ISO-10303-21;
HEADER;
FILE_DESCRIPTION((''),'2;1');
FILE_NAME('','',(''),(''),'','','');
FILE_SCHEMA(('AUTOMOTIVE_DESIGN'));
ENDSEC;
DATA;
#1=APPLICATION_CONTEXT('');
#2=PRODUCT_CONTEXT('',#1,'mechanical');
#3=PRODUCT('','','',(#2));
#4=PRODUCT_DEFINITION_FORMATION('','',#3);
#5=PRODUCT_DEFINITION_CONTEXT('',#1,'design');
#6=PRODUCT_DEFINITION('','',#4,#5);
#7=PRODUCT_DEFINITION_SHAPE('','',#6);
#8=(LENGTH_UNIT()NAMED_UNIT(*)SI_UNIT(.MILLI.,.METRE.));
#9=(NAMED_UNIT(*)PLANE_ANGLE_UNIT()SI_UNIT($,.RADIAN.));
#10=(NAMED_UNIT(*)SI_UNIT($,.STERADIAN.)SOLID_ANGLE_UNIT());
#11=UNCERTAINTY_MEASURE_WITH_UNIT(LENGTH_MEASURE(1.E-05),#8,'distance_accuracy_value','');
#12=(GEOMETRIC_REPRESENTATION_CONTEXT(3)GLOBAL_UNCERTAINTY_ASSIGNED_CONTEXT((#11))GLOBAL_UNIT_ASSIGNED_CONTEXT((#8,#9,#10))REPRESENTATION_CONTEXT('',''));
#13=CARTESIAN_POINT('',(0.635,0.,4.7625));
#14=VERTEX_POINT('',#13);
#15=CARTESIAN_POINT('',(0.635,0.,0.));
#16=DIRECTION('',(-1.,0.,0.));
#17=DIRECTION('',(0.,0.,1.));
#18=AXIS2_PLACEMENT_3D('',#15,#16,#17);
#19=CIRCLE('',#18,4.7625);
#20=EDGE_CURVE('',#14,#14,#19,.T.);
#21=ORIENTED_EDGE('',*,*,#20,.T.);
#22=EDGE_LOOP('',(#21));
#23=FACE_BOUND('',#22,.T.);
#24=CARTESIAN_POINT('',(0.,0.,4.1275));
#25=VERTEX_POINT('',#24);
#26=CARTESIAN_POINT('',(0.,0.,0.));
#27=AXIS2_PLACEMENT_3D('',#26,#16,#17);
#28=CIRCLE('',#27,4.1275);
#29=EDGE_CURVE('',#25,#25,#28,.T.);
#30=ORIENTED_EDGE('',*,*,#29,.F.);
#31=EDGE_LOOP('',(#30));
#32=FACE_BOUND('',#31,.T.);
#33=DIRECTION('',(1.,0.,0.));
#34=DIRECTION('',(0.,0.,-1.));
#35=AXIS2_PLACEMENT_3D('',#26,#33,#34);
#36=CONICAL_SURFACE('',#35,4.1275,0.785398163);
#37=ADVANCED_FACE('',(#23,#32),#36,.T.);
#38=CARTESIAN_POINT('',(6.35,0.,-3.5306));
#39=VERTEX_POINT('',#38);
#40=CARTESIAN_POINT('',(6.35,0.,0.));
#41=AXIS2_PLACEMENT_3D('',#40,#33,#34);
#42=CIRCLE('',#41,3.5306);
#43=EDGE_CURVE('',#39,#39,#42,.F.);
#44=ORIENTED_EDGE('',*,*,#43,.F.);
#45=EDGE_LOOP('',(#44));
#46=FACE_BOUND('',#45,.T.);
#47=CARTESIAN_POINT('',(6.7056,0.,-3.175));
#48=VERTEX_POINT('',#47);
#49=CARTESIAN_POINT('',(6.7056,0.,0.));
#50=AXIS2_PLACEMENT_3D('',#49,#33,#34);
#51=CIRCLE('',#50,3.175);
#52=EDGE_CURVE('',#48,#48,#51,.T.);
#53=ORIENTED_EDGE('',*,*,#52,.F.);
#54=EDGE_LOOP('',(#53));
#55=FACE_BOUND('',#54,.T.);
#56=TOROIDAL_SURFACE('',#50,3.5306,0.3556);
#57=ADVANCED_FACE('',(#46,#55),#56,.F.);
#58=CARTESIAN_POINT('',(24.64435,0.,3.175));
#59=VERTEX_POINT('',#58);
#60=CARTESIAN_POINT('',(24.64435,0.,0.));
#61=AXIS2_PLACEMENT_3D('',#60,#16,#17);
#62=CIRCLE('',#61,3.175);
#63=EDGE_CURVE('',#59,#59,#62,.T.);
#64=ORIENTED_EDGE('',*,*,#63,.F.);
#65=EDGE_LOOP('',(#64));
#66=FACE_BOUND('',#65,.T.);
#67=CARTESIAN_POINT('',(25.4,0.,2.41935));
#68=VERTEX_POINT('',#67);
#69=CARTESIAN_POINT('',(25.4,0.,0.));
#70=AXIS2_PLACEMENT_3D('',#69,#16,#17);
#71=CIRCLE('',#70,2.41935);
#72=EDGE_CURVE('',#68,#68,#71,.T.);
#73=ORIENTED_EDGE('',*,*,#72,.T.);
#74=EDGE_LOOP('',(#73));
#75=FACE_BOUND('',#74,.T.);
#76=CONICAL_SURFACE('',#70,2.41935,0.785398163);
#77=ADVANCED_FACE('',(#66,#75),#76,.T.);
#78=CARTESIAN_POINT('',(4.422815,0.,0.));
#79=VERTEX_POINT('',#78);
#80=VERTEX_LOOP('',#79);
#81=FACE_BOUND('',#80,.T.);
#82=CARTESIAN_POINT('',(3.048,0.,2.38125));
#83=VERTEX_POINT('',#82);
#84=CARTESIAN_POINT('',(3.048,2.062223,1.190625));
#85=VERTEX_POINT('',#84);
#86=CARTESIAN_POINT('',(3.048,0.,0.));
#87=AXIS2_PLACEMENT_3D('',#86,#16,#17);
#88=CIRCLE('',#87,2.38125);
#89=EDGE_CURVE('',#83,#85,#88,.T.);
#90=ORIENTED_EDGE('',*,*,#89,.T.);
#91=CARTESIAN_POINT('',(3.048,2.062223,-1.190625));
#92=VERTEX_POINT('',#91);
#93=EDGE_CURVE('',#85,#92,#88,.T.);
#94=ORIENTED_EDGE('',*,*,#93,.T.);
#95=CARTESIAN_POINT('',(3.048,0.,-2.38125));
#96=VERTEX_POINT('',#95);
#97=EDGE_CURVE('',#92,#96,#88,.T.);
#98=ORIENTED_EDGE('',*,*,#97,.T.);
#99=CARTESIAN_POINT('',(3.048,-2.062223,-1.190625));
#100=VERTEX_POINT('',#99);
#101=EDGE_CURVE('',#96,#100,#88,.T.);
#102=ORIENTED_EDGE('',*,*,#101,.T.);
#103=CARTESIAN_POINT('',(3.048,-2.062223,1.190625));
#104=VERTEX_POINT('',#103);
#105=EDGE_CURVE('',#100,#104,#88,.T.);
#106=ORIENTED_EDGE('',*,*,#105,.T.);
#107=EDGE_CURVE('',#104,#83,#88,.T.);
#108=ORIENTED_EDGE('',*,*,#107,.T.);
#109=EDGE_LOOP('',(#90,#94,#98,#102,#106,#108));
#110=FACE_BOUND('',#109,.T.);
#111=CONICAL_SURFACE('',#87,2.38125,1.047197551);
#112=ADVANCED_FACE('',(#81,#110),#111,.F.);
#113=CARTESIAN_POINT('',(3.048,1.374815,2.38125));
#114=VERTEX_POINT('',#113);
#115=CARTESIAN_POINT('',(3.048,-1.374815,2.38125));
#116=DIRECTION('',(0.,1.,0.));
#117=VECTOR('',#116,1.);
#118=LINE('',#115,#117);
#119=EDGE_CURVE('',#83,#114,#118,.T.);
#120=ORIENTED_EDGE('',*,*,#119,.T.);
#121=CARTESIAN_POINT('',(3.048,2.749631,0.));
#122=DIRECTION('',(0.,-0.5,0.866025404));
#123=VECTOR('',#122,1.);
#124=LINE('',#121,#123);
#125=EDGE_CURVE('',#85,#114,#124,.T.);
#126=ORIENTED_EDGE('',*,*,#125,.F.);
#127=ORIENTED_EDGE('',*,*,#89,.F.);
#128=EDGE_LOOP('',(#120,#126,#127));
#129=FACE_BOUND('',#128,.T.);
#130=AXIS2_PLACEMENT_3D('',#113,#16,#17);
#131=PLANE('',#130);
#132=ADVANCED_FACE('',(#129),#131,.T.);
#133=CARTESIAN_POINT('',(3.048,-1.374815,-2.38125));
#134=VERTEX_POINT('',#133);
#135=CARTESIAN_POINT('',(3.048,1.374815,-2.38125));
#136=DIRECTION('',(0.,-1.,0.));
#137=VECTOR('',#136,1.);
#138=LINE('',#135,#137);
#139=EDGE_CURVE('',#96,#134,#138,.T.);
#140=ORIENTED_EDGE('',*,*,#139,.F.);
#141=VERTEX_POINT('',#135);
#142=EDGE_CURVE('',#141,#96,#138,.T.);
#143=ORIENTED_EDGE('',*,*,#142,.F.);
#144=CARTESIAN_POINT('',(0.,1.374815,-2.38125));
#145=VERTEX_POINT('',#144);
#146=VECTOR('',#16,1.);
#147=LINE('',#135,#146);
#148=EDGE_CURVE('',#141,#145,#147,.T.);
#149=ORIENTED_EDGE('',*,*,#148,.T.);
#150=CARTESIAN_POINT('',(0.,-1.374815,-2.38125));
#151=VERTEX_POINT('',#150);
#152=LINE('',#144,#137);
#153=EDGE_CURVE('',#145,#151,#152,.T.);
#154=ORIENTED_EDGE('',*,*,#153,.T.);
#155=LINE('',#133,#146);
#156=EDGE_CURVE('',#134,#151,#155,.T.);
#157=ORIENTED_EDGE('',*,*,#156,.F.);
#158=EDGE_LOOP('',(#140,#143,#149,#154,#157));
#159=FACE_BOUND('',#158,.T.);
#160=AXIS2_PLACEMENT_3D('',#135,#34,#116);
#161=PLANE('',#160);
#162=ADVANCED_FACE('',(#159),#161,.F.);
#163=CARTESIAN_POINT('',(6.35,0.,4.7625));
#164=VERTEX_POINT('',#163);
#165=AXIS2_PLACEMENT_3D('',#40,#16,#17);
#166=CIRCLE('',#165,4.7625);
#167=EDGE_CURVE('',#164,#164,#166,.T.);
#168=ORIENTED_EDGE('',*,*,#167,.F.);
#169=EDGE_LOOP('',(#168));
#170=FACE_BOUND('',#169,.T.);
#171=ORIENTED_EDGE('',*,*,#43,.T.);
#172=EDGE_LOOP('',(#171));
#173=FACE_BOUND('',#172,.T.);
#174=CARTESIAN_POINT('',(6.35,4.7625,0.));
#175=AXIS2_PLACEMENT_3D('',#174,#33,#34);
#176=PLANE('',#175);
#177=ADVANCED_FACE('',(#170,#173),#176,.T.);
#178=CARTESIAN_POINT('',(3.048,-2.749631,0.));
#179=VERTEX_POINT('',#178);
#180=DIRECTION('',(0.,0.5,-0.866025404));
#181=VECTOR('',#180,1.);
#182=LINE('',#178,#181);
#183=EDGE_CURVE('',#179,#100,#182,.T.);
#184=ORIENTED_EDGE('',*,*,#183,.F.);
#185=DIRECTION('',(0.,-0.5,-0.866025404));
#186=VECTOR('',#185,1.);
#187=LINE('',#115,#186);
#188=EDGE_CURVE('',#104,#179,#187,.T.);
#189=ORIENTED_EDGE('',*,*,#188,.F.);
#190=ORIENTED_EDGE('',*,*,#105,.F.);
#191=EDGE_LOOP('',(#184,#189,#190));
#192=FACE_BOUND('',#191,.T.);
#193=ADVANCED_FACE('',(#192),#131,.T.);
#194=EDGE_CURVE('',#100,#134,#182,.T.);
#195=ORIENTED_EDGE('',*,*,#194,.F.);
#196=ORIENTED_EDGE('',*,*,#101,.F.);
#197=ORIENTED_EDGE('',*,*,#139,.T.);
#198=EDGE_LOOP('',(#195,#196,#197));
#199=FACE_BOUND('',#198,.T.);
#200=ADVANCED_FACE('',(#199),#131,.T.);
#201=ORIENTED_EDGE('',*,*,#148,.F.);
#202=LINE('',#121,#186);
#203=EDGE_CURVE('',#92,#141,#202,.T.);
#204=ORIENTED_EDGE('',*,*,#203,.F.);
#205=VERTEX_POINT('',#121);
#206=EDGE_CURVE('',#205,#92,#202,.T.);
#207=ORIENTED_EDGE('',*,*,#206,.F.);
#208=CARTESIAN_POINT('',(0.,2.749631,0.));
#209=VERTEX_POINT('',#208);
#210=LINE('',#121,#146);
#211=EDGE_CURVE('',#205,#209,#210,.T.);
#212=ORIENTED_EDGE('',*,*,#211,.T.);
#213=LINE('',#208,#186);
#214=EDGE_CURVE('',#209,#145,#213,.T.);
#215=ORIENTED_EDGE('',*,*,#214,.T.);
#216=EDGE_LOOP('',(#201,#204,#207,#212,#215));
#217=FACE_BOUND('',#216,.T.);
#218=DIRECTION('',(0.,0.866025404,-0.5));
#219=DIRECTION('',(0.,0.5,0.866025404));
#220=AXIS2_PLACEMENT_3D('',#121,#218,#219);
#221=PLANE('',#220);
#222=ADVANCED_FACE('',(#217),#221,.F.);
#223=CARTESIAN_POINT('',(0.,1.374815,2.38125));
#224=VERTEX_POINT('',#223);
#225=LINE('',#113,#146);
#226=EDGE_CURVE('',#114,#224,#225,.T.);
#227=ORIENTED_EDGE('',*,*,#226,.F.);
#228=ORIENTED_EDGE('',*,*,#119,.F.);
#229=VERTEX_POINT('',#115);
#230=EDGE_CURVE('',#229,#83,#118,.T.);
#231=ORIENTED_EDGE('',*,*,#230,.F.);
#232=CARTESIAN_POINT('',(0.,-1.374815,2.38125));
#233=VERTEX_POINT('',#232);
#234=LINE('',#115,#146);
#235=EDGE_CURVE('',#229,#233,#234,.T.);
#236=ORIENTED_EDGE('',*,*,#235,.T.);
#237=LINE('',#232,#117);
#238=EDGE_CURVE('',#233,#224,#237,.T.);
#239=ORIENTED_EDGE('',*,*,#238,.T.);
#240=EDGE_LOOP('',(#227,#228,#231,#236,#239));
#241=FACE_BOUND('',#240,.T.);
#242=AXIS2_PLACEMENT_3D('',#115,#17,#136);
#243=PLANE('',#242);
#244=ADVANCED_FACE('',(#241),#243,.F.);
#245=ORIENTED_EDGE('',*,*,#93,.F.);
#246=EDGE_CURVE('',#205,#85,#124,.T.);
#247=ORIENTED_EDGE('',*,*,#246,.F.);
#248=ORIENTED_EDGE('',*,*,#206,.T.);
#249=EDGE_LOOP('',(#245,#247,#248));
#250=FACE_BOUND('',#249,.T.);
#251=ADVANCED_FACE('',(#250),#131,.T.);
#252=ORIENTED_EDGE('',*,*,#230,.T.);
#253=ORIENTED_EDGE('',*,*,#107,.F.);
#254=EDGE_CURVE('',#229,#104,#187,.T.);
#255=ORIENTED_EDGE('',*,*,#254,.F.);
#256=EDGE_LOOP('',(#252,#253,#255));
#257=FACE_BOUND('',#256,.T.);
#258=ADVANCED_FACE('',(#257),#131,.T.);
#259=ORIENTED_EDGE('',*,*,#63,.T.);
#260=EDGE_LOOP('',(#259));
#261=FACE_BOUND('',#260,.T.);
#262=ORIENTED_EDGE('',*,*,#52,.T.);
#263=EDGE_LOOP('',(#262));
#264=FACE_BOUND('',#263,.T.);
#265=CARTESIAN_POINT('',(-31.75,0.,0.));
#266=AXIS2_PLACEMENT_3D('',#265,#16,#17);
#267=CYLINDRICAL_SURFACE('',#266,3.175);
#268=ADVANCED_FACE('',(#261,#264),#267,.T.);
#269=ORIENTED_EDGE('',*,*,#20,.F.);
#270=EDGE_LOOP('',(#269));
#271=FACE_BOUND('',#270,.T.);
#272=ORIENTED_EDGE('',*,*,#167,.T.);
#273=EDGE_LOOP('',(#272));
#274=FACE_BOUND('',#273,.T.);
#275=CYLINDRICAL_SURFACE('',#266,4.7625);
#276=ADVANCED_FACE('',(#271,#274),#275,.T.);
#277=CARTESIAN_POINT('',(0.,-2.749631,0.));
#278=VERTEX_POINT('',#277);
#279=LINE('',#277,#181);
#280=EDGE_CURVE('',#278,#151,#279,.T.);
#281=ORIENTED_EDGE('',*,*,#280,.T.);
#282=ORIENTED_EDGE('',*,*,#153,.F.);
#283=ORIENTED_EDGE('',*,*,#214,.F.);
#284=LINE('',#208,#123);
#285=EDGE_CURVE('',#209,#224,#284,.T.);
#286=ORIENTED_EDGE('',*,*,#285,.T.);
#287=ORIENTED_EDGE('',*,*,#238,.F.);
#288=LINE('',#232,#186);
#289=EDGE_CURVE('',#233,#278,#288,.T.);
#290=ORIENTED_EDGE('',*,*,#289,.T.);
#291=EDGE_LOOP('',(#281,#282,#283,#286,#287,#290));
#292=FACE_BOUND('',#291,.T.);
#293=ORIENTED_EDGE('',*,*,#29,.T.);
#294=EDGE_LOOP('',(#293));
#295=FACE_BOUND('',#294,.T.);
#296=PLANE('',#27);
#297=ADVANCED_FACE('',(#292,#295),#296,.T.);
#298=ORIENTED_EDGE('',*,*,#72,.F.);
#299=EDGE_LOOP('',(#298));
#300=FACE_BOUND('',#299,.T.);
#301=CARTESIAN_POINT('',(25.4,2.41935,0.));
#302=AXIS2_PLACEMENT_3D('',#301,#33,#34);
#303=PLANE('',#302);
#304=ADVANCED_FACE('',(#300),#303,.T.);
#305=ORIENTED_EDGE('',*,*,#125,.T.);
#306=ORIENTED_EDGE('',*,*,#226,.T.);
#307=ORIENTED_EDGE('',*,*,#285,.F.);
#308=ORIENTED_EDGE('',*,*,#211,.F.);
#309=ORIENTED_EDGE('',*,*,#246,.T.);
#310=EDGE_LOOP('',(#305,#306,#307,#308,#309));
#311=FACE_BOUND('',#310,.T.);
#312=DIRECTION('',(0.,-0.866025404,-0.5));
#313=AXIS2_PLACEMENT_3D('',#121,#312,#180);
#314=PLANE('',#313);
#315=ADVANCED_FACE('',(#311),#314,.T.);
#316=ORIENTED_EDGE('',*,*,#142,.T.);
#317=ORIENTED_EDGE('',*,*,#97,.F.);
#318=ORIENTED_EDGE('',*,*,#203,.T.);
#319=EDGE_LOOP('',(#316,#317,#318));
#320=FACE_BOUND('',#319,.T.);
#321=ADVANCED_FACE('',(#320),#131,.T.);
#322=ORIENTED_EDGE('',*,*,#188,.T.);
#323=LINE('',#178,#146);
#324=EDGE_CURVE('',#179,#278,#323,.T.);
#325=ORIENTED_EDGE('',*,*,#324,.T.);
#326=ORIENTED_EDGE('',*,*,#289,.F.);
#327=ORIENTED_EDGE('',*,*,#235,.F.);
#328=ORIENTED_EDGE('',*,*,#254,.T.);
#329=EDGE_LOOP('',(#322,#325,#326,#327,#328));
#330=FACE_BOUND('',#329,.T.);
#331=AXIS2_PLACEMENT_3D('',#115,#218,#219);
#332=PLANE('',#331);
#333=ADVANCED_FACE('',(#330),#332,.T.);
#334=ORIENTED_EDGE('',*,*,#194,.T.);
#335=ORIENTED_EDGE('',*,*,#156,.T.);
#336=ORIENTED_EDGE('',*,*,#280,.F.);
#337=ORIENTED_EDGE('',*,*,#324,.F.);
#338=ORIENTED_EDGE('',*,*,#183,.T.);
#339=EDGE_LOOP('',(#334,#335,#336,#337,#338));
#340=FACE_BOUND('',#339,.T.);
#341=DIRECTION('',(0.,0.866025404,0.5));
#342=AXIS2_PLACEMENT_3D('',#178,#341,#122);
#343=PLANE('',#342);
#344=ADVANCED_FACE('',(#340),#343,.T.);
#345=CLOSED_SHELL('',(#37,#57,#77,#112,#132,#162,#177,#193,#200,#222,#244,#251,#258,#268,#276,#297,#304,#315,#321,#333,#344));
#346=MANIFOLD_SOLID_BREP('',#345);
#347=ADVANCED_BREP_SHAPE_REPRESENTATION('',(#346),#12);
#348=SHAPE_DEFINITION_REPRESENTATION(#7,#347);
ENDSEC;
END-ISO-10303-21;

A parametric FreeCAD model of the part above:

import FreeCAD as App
import Part
import Sketcher
from FreeCAD import Vector
Q = App.Units.Quantity


def edges_at(feature, points):
    """Names of the edges that pass closest to the given points."""
    edges = feature.Shape.Edges
    near = lambda p: min(range(len(edges)), key=lambda i: edges[i].distToShape(Part.Vertex(*p))[0])
    return sorted({f"Edge{near(p) + 1}" for p in points})


def add_polygon(sketch, points):
    """Adds a closed chain of lines whose ends are joined by coincident constraints."""
    first, n = sketch.GeometryCount, len(points)
    for a, b in zip(points, points[1:] + points[:1]):
        sketch.addGeometry(Part.LineSegment(App.Vector(*a, 0), App.Vector(*b, 0)), False)
    for i in range(n):
        sketch.addConstraint(Sketcher.Constraint("Coincident", first + i, 2, first + (i + 1) % n, 1))

doc = App.newDocument("Part")
body = doc.addObject("PartDesign::Body", "Body")

# Sketch on XY plane
sketch1 = body.newObject("Sketcher::SketchObject", "Sketch")
sketch1.AttachmentSupport = (doc.getObject("XY_Plane"), [""])
sketch1.MapMode = "FlatFace"
add_polygon(sketch1, [(0, 4.1275), (0, 0), (25.4, 0), (25.4, 2.41935), (24.64435, 3.175), (6.35, 3.175), (6.35, 4.7625), (0.635, 4.7625)])  # lines 0-7
sketch1.addConstraint(Sketcher.Constraint("Vertical", 0))
sketch1.addConstraint(Sketcher.Constraint("Horizontal", 1))
sketch1.addConstraint(Sketcher.Constraint("Vertical", 2))
sketch1.addConstraint(Sketcher.Constraint("Horizontal", 4))
sketch1.addConstraint(Sketcher.Constraint("Vertical", 5))
sketch1.addConstraint(Sketcher.Constraint("Horizontal", 6))
sketch1.addConstraint(Sketcher.Constraint("Coincident", 0, 2, -1, 1))
sketch1.addConstraint(Sketcher.Constraint("Perpendicular", 3, 7))
sketch1.addConstraint(Sketcher.Constraint("DistanceX", 1, 1, 1, 2, Q("1 in")))
sketch1.addConstraint(Sketcher.Constraint("Angle", 3, Q("135 deg")))
sketch1.addConstraint(Sketcher.Constraint("DistanceX", 6, 2, 6, 1, Q("0.225 in")))
sketch1.addConstraint(Sketcher.Constraint("DistanceY", 5, 1, 5, 2, Q("0.0625 in")))
sketch1.addConstraint(Sketcher.Constraint("DistanceX", -1, 1, 4, 2, Q("0.25 in")))
sketch1.addConstraint(Sketcher.Constraint("DistanceY", 0, 2, 0, 1, Q("0.1625 in")))
sketch1.addConstraint(Sketcher.Constraint("DistanceX", 4, 2, 4, 1, Q("18.29435 mm")))
revolution = body.newObject("PartDesign::Revolution", "Revolution")
revolution.Profile = sketch1
revolution.ReferenceAxis = (sketch1, ["H_Axis"])
revolution.Angle = 360
doc.recompute()

fillet = body.newObject("PartDesign::Fillet", "Fillet")
fillet.Base = (revolution, edges_at(revolution, [(6.35, 0, -3.175)]))
fillet.Radius = Q("0.014 in")

# Sketch on XY plane
sketch2 = body.newObject("Sketcher::SketchObject", "Sketch001")
sketch2.AttachmentSupport = (doc.getObject("XY_Plane"), [""])
sketch2.MapMode = "FlatFace"
add_polygon(sketch2, [(3.048, 2.38125), (0, 2.38125), (0, 0), (4.422815, 0)])  # lines 0-3
sketch2.addConstraint(Sketcher.Constraint("Horizontal", 0))
sketch2.addConstraint(Sketcher.Constraint("Vertical", 1))
sketch2.addConstraint(Sketcher.Constraint("Horizontal", 2))
sketch2.addConstraint(Sketcher.Constraint("Coincident", 1, 2, -1, 1))
sketch2.addConstraint(Sketcher.Constraint("Angle", 3, Q("120 deg")))
sketch2.addConstraint(Sketcher.Constraint("DistanceX", 0, 2, 0, 1, Q("0.12 in")))
sketch2.addConstraint(Sketcher.Constraint("DistanceY", 1, 2, 1, 1, Q("0.09375 in")))
groove = body.newObject("PartDesign::Groove", "Groove")
groove.Profile = sketch2
groove.ReferenceAxis = (sketch2, ["H_Axis"])
groove.Angle = 360

# Sketch on YZ plane
sketch3 = body.newObject("Sketcher::SketchObject", "Sketch002")
sketch3.AttachmentSupport = (doc.getObject("YZ_Plane"), [""])
sketch3.MapMode = "FlatFace"
add_polygon(sketch3, [(2.749631, 0), (1.374815, -2.38125), (-1.374815, -2.38125), (-2.749631, 0), (-1.374815, 2.38125), (1.374815, 2.38125)])  # lines 0-5
sketch3.addConstraint(Sketcher.Constraint("Horizontal", 1))
sketch3.addConstraint(Sketcher.Constraint("Horizontal", 4))
sketch3.addConstraint(Sketcher.Constraint("Symmetric", 0, 2, 3, 2, -1, 1))
sketch3.addConstraint(Sketcher.Constraint("Symmetric", 2, 2, 5, 2, -1, 1))
sketch3.addConstraint(Sketcher.Constraint("PointOnObject", 2, 2, -1))
sketch3.addConstraint(Sketcher.Constraint("Parallel", 2, 5))
sketch3.addConstraint(Sketcher.Constraint("Vertical", 1, 2, 3, 2))
sketch3.addConstraint(Sketcher.Constraint("Angle", 0, Q("-120 deg")))
sketch3.addConstraint(Sketcher.Constraint("DistanceY", 0, 2, -1, 1, Q("0.09375 in")))
sketch3.addConstraint(Sketcher.Constraint("DistanceX", 1, 2, 1, 1, Q("2.749631 mm")))
pocket1 = body.newObject("PartDesign::Pocket", "Pocket")
pocket1.Profile = sketch3
pocket1.Length = Q("0.12 in")
pocket1.Reversed = True

doc.recompute()
